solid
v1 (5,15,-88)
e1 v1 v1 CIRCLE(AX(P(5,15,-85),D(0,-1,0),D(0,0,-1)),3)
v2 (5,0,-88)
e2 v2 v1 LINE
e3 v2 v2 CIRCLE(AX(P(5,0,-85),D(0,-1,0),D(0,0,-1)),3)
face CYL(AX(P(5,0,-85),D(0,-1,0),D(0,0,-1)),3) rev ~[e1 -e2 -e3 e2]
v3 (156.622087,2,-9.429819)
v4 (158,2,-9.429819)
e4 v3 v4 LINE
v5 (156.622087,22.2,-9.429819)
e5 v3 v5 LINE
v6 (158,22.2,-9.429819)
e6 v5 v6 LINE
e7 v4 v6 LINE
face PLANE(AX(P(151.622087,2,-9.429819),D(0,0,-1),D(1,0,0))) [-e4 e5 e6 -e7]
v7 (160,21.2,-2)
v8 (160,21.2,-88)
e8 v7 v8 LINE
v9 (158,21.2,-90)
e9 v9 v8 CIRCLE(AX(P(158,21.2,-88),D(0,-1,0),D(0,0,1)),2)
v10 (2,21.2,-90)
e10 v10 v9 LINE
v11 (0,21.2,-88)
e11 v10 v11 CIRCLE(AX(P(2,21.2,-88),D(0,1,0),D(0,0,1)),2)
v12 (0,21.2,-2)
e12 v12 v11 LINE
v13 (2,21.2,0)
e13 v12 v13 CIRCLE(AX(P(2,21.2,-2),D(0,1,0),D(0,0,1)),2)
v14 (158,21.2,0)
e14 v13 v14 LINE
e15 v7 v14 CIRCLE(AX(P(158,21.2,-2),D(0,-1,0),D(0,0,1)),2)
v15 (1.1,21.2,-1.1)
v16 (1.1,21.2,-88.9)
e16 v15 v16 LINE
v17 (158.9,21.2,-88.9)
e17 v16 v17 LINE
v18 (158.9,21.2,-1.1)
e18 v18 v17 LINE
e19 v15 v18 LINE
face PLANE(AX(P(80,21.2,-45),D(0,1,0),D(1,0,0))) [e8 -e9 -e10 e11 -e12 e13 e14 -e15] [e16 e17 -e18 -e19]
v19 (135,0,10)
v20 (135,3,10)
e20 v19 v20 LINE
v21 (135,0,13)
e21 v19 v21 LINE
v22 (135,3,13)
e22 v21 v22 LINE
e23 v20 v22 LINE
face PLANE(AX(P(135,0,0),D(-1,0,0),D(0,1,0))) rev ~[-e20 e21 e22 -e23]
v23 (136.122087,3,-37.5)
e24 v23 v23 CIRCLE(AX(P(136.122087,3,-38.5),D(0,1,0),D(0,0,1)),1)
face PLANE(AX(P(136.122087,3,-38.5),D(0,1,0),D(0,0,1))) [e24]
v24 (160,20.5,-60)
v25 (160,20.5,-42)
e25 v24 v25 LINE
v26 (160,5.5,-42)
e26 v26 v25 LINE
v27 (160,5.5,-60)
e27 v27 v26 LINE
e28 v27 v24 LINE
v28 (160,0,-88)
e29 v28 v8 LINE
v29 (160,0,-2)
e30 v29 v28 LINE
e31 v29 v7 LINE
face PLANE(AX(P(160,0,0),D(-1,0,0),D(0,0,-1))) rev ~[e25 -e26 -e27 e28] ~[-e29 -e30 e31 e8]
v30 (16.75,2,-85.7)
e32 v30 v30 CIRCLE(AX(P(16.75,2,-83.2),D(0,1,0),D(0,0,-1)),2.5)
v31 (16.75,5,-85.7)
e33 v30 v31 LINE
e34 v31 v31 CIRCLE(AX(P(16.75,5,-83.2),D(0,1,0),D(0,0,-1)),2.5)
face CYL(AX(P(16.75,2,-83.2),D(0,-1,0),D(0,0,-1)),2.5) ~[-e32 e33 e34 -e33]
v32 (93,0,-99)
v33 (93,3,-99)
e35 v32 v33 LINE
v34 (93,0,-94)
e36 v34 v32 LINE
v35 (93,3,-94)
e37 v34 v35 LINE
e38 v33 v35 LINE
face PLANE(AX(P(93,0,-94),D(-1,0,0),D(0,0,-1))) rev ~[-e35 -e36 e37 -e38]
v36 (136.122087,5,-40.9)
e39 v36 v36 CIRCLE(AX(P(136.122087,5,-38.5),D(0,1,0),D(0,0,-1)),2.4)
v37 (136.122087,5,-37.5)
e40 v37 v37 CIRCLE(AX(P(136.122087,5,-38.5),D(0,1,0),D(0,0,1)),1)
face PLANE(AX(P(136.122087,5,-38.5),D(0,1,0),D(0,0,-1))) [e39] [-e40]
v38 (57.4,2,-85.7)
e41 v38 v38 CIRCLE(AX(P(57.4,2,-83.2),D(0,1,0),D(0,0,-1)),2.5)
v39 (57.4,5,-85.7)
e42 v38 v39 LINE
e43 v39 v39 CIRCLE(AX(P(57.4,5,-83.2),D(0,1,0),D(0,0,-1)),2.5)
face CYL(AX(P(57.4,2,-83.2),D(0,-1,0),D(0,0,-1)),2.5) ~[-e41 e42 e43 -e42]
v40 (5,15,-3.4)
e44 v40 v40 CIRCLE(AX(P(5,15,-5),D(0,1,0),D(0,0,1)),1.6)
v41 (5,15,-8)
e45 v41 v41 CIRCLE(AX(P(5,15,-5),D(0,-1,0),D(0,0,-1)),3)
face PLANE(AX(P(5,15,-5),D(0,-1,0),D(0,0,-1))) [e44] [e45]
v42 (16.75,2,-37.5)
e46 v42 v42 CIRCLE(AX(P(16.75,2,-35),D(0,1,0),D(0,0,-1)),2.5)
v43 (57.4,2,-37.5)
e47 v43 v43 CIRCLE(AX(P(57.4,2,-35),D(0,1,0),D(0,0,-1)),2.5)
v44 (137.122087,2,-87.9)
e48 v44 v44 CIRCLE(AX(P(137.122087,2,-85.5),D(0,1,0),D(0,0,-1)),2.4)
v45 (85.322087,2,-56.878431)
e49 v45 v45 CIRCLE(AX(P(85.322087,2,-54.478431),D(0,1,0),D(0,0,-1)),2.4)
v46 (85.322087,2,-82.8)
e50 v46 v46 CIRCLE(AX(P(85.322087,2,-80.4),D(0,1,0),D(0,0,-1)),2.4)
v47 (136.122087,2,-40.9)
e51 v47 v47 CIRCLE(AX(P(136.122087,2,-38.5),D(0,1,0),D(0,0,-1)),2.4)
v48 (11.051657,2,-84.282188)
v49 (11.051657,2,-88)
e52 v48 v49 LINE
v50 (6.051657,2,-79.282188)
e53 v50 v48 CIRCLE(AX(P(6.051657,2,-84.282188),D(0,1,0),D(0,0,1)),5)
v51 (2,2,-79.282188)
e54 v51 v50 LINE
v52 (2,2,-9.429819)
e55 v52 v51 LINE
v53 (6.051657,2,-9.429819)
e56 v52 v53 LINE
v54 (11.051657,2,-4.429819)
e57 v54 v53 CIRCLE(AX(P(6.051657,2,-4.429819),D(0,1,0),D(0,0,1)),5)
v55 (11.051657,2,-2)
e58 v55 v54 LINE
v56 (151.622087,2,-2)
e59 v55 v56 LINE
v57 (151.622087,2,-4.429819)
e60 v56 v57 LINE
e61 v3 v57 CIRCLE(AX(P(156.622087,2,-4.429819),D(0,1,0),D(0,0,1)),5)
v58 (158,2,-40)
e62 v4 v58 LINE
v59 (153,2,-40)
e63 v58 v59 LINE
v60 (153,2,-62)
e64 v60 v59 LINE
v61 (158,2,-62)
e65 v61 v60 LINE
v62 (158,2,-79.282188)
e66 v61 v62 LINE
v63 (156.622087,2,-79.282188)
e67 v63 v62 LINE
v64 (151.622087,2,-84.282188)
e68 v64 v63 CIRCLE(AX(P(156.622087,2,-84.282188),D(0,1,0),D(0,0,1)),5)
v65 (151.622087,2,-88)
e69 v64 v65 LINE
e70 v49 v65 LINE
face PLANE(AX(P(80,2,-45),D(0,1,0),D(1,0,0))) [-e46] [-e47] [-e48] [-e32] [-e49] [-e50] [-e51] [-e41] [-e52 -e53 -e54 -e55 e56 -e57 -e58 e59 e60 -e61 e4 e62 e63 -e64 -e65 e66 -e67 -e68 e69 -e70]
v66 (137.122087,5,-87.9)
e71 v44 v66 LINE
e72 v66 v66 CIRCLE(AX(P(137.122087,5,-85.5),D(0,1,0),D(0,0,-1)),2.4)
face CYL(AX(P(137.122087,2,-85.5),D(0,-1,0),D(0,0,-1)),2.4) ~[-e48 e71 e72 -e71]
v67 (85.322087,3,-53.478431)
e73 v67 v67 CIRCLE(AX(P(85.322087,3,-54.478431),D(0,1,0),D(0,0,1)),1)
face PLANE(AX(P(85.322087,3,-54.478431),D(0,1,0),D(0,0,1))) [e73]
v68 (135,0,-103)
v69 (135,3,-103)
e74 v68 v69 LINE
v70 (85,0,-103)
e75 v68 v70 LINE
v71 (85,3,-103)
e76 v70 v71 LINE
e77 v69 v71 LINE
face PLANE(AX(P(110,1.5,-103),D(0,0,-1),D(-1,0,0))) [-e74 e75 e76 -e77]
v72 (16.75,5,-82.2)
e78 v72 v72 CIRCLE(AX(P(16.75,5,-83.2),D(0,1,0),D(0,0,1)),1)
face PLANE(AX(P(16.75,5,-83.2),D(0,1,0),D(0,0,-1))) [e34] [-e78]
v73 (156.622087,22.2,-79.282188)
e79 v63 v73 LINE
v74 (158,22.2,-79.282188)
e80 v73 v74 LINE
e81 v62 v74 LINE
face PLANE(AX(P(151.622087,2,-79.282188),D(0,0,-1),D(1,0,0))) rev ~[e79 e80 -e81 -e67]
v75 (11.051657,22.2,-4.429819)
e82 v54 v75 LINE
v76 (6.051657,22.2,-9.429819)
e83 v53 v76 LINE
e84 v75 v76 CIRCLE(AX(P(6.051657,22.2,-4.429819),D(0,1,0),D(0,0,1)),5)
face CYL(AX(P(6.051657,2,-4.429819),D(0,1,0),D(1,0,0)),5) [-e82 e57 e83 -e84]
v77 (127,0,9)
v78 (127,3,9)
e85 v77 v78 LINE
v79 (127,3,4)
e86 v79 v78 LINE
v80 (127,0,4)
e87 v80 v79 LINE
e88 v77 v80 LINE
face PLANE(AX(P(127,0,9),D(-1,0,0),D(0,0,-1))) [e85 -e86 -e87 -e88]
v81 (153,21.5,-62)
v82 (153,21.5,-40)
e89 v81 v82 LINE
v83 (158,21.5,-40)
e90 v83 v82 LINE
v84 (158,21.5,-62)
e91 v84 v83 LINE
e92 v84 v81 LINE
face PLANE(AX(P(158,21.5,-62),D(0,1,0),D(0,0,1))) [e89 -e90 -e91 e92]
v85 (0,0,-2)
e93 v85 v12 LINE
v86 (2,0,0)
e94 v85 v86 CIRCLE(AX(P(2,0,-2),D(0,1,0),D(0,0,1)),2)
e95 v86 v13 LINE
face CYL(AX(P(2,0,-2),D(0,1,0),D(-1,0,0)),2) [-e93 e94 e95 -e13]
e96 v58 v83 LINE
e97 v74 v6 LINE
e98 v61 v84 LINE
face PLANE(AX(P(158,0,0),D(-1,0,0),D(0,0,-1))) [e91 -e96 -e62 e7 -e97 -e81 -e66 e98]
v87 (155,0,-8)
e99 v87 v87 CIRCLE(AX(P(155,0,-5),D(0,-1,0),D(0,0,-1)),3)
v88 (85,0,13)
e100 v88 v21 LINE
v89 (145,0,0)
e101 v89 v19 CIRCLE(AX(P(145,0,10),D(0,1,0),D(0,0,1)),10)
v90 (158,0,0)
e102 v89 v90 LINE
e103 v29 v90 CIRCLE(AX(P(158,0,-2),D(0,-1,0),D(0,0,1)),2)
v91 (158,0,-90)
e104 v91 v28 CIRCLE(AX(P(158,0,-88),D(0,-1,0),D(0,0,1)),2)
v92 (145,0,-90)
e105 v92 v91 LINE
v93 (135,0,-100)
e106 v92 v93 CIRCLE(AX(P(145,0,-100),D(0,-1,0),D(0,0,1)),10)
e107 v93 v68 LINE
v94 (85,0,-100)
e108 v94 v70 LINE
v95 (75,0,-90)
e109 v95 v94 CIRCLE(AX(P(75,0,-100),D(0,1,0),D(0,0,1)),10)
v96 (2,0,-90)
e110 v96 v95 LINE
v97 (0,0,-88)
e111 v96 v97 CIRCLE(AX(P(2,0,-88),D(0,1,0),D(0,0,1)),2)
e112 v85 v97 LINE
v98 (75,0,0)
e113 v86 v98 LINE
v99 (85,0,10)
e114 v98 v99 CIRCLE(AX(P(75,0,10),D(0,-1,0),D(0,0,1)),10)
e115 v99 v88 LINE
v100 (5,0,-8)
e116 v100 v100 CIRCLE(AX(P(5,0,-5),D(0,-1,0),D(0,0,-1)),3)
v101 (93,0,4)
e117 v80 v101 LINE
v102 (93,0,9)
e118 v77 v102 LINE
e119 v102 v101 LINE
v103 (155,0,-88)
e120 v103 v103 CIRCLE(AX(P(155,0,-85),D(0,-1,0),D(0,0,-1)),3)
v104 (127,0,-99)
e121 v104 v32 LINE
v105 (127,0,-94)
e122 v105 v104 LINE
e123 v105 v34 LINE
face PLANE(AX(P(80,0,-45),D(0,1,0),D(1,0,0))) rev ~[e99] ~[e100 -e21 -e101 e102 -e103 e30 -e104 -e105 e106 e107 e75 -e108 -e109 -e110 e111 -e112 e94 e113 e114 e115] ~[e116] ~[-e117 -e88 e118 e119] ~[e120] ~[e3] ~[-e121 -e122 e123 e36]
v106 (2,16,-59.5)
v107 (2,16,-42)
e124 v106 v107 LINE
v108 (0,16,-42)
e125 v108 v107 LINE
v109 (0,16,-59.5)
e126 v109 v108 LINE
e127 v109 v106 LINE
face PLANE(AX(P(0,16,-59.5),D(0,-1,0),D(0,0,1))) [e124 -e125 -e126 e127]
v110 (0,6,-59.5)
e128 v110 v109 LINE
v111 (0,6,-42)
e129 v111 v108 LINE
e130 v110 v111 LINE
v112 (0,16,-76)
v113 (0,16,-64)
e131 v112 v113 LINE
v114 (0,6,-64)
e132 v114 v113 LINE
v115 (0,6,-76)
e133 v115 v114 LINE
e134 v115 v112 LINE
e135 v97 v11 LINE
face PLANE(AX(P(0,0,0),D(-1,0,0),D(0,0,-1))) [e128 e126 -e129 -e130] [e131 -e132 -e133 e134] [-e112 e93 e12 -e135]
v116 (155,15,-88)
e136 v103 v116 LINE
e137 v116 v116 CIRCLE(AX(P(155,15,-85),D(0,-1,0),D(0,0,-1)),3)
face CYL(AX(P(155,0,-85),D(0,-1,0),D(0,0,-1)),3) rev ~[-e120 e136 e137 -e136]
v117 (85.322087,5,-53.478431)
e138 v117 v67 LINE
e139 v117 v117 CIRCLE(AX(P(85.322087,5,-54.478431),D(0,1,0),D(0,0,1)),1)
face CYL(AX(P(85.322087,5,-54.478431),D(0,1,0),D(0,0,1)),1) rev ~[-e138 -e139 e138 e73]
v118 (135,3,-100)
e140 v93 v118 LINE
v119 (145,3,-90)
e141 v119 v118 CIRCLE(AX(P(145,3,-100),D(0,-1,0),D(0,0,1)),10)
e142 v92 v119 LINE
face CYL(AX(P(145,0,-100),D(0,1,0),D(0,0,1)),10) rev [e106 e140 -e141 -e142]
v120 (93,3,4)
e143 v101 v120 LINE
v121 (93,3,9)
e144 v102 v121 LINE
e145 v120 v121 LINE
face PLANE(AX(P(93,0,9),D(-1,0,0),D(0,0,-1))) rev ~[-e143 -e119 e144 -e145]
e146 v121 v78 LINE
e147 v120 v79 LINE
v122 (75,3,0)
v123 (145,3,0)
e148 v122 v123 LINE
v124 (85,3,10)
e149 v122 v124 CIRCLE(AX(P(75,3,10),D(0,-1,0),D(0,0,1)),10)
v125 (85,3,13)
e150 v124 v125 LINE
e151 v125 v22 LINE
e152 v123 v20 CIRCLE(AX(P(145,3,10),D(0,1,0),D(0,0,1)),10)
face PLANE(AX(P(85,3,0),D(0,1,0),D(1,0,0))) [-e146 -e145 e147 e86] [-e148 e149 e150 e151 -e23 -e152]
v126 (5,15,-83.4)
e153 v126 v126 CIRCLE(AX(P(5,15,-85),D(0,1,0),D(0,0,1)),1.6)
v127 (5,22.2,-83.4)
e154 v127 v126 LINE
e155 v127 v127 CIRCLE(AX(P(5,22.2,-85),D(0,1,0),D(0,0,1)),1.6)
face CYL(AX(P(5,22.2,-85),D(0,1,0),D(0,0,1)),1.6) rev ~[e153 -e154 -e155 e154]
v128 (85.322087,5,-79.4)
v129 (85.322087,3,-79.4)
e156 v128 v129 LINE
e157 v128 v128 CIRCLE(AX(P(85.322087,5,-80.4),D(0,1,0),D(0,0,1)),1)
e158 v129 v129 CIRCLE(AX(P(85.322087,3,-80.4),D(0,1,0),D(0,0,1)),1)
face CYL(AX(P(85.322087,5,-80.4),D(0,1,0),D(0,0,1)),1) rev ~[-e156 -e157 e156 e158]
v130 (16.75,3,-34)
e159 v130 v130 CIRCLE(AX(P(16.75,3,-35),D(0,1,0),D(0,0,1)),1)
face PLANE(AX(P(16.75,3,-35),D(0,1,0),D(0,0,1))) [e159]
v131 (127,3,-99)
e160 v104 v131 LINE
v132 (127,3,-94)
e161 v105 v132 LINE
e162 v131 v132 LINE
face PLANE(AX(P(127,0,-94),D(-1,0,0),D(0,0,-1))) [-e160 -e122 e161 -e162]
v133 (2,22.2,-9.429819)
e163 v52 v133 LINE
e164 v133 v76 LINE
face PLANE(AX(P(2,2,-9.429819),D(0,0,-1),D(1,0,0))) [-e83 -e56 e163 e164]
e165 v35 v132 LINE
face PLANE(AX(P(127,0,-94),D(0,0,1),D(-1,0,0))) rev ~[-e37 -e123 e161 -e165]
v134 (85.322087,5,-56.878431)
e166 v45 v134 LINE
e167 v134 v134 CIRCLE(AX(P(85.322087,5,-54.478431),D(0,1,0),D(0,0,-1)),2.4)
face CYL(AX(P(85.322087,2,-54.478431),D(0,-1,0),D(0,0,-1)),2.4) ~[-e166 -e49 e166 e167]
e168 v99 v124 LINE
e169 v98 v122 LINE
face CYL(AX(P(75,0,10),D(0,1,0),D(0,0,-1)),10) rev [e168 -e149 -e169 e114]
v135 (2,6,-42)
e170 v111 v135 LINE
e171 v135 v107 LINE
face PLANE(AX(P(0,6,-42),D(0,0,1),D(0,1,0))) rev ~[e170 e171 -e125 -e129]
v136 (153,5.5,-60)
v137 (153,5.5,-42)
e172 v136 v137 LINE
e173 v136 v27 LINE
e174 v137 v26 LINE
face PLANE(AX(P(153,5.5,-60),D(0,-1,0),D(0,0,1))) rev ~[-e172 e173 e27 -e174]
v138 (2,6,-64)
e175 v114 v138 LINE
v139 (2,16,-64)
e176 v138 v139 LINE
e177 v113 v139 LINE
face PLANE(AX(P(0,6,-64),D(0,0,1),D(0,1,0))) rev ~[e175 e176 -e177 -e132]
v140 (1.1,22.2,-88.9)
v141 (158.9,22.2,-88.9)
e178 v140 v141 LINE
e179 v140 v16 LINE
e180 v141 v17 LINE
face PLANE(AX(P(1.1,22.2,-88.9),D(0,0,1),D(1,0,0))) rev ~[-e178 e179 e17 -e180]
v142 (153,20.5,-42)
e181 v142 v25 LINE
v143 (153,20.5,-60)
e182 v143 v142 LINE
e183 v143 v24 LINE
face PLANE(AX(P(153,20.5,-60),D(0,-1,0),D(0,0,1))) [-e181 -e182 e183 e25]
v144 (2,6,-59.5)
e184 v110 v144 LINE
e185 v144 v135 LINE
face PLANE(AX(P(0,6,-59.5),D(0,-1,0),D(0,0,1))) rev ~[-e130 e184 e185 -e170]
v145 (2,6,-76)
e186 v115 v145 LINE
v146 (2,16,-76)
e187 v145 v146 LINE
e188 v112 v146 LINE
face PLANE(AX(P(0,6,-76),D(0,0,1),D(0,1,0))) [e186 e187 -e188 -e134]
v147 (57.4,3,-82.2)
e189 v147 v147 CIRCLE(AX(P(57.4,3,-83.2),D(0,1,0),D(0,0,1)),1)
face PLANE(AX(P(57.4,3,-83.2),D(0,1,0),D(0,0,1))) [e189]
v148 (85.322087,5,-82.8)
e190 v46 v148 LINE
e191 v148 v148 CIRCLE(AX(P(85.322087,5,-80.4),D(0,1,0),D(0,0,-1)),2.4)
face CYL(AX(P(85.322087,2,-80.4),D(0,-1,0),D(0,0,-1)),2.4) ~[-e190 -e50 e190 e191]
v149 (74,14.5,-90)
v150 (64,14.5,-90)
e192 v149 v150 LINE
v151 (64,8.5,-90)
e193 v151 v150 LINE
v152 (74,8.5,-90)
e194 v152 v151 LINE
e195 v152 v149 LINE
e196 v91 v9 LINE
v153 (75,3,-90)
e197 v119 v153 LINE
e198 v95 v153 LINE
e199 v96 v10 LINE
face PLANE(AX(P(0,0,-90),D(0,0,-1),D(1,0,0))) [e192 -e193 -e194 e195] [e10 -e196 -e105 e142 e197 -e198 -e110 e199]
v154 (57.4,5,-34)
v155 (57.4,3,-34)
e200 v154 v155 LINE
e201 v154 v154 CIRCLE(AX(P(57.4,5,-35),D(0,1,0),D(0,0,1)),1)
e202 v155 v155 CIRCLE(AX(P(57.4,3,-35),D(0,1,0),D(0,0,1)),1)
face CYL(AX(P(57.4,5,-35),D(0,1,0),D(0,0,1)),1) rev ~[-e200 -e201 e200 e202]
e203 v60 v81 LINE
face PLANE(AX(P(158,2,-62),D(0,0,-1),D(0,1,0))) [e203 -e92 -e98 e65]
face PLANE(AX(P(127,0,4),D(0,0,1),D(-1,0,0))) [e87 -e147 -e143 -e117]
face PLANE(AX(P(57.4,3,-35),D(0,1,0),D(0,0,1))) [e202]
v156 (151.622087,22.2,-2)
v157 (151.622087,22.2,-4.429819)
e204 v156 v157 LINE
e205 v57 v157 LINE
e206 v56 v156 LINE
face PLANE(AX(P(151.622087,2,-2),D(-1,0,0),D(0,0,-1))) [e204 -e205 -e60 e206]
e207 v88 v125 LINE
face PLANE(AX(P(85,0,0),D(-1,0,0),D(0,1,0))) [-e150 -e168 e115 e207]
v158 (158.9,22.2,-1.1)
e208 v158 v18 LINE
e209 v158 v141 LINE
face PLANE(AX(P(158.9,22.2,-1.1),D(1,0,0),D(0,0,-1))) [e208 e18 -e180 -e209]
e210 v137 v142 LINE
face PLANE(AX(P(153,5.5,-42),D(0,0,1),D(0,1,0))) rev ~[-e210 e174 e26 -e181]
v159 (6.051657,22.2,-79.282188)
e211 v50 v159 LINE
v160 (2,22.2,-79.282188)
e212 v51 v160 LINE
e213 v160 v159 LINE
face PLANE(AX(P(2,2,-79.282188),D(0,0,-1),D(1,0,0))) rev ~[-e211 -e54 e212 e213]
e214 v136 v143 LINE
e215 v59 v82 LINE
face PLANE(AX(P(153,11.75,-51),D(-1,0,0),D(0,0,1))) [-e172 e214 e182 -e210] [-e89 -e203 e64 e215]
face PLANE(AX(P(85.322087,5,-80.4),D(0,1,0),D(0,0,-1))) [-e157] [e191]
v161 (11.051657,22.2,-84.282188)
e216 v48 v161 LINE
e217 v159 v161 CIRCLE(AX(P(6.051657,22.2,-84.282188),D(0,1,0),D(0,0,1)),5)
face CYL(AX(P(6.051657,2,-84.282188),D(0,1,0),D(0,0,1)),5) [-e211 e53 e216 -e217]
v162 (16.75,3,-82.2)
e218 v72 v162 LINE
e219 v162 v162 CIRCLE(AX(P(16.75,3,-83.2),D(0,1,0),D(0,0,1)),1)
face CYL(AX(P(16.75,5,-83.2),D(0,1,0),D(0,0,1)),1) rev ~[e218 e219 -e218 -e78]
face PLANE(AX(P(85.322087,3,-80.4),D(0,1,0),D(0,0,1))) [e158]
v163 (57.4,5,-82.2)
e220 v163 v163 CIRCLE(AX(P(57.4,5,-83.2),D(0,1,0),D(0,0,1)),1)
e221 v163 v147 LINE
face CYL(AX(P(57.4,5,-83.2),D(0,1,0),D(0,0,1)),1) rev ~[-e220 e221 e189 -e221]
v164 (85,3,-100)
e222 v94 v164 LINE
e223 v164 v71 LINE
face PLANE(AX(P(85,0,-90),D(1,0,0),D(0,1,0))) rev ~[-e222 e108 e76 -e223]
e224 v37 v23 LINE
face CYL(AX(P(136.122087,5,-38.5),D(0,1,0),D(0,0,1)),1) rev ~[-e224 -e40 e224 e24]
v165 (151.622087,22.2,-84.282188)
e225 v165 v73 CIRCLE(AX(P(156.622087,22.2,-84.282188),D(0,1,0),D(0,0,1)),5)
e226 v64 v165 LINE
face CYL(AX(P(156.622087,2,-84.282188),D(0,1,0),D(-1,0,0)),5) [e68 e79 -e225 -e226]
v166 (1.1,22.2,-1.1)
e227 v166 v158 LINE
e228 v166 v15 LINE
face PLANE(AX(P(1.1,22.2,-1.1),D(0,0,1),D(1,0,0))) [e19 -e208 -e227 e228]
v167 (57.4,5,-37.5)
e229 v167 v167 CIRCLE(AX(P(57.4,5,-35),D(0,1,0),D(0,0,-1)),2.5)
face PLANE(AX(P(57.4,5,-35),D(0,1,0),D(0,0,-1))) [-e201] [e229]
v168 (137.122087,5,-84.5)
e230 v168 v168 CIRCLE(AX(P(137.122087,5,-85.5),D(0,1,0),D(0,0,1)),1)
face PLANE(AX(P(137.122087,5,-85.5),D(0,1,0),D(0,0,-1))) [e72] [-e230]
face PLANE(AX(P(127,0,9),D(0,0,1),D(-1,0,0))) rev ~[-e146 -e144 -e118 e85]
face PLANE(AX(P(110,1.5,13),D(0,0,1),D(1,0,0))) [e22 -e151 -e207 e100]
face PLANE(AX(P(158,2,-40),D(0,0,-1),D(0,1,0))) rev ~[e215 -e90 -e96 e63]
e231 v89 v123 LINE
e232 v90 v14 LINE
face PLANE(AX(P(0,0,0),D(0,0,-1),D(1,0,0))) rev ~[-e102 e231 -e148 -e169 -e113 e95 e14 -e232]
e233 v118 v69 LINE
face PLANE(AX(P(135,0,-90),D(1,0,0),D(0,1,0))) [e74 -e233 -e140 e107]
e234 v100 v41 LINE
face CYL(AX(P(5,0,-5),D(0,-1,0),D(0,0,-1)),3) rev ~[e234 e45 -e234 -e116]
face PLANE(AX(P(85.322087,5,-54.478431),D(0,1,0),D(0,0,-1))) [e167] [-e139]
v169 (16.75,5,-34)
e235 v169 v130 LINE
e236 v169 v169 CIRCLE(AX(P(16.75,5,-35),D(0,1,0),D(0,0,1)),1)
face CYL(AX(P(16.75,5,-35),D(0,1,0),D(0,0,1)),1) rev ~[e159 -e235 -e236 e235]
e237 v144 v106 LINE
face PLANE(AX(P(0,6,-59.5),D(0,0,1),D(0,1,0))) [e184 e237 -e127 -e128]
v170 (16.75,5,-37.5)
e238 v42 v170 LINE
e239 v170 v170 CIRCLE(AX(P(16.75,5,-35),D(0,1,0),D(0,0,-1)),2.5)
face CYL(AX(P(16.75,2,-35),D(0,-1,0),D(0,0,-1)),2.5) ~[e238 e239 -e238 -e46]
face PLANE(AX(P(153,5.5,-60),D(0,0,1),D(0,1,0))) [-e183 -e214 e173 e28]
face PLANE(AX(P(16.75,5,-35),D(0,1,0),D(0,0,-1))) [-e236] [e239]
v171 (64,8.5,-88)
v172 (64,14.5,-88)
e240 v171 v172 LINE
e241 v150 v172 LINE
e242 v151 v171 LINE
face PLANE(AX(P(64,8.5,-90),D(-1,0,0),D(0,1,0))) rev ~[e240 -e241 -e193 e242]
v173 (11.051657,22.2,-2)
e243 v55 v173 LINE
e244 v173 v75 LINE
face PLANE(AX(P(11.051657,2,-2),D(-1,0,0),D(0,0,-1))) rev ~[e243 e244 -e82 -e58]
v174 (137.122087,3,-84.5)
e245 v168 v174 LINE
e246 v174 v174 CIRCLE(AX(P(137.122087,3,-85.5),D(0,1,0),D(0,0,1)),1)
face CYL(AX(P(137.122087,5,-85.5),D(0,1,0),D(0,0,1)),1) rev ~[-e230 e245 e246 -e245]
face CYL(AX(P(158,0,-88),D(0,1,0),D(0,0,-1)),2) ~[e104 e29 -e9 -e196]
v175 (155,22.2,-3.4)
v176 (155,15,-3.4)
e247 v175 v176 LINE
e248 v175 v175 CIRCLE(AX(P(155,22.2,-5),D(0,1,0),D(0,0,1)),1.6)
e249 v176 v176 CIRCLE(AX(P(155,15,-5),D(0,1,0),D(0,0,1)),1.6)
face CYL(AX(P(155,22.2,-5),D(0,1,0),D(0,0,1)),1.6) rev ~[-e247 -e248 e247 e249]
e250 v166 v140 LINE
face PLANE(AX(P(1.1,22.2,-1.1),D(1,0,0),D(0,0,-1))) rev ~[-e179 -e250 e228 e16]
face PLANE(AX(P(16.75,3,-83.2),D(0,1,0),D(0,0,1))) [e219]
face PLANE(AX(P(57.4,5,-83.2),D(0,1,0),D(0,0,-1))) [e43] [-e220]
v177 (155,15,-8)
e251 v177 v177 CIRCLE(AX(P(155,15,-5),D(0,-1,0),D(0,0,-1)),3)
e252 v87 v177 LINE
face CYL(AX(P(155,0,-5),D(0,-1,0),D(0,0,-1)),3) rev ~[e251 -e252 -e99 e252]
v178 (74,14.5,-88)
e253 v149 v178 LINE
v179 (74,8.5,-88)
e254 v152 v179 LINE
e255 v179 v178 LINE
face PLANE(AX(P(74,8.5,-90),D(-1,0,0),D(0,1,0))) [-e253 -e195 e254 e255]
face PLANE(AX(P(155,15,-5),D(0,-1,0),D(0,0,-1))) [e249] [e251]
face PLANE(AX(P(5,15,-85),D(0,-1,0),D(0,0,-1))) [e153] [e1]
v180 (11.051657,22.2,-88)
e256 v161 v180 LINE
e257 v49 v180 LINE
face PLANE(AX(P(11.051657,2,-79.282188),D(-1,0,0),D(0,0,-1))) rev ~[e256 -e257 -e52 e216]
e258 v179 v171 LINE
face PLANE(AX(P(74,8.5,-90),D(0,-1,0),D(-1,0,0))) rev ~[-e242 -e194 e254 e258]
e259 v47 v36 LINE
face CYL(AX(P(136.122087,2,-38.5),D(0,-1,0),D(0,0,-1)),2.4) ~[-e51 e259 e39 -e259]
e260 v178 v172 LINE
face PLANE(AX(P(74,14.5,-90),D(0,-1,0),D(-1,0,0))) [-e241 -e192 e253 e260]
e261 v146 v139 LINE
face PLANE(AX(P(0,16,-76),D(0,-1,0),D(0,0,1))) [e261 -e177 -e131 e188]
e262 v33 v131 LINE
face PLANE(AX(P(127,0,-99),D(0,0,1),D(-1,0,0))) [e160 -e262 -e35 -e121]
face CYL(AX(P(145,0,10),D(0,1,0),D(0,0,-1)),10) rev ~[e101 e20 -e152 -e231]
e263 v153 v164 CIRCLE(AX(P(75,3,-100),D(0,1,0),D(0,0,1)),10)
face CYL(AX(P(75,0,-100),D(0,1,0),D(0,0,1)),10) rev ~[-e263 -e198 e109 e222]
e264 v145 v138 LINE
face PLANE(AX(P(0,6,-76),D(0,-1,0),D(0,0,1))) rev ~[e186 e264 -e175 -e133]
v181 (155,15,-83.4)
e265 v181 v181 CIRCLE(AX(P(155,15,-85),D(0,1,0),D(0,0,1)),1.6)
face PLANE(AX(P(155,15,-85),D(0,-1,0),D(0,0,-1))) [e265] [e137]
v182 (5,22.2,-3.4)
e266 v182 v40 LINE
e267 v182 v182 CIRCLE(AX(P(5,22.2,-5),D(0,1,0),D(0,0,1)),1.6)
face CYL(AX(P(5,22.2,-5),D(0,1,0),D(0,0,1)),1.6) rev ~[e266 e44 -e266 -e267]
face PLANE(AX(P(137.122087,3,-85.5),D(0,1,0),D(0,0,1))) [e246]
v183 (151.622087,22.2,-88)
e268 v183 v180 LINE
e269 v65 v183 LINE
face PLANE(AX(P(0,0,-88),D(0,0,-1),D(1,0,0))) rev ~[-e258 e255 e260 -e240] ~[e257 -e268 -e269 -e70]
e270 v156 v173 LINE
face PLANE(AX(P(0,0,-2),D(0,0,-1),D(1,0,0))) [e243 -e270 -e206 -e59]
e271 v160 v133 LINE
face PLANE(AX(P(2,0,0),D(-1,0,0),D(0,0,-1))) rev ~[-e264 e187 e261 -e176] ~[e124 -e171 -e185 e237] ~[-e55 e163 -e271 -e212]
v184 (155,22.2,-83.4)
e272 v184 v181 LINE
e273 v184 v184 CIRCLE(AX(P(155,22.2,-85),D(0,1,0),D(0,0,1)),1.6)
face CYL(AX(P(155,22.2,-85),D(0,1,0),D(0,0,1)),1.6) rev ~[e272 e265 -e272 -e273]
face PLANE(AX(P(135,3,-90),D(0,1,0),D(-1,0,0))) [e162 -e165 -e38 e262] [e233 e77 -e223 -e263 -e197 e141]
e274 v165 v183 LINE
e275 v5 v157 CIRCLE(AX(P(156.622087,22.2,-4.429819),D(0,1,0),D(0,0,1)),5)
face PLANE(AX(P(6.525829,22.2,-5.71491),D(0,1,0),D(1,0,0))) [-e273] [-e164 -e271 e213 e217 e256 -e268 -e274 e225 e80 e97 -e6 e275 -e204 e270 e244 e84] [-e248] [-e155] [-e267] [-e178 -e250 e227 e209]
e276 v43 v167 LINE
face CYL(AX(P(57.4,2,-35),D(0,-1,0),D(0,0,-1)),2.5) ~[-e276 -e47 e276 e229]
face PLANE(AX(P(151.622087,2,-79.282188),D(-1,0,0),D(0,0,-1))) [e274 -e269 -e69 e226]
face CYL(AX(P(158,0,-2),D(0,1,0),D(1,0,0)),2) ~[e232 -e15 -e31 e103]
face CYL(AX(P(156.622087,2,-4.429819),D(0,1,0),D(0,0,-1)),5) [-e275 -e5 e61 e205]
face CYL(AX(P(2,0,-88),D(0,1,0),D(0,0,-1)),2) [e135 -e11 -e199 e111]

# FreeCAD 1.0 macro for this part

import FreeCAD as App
import Part
import Sketcher
from FreeCAD import Vector


def edges_at(feature, points):
    """Names of the edges that pass closest to the given points."""
    edges = feature.Shape.Edges
    near = lambda p: min(range(len(edges)), key=lambda i: edges[i].distToShape(Part.Vertex(*p))[0])
    return sorted({f"Edge{near(p) + 1}" for p in points})


def faces_at(feature, points):
    """Names of the faces that lie closest to the given points."""
    faces = feature.Shape.Faces
    near = lambda p: min(range(len(faces)), key=lambda i: faces[i].distToShape(Part.Vertex(*p))[0])
    return sorted({f"Face{near(p) + 1}" for p in points})

doc = App.newDocument("Part")
body = doc.addObject("PartDesign::Body", "Body")

# Sketch on XZ plane
sketch1 = body.newObject("Sketcher::SketchObject", "Sketch")
sketch1.AttachmentSupport = (doc.getObject("XZ_Plane"), [""])
sketch1.MapMode = "FlatFace"
sketch1.addGeometry([
    Part.LineSegment(Vector(0, -90, 0), Vector(0, 0, 0)),
    Part.LineSegment(Vector(0, 0, 0), Vector(160, 0, 0)),
    Part.LineSegment(Vector(160, 0, 0), Vector(160, -90, 0)),
    Part.LineSegment(Vector(160, -90, 0), Vector(0, -90, 0)),
], False)
sketch1.addConstraint([
    Sketcher.Constraint("Coincident", 0, 2, 1, 1),
    Sketcher.Constraint("Coincident", 1, 2, 2, 1),
    Sketcher.Constraint("Coincident", 2, 2, 3, 1),
    Sketcher.Constraint("Coincident", 3, 2, 0, 1),
    Sketcher.Constraint("Vertical", 0),
    Sketcher.Constraint("Horizontal", 1),
    Sketcher.Constraint("Vertical", 2),
    Sketcher.Constraint("Horizontal", 3),
    Sketcher.Constraint("Coincident", 0, 2, -1, 1),
    Sketcher.Constraint("DistanceX", 1, 1, 1, 2, 160.0),
    Sketcher.Constraint("DistanceY", 0, 1, 0, 2, 90.0),
])
pad1 = body.newObject("PartDesign::Pad", "Pad")
pad1.Profile = sketch1
pad1.Length = 22.2
pad1.Reversed = True
doc.recompute()

thickness = body.newObject("PartDesign::Thickness", "Thickness")
thickness.Base = (pad1, faces_at(pad1, [(80, 22.2, -45)]))
thickness.Value = 2
thickness.Reversed = True
thickness.Join = "Intersection"

# Sketch on XZ plane
sketch2 = body.newObject("Sketcher::SketchObject", "Sketch001")
sketch2.AttachmentSupport = (doc.getObject("XZ_Plane"), [""])
sketch2.MapMode = "FlatFace"
sketch2.AttachmentOffset = App.Placement(Vector(0, 0, -2), App.Rotation())
sketch2.addGeometry([
    Part.LineSegment(Vector(2, -9, 0), Vector(2, -2, 0)),  # 0
    Part.LineSegment(Vector(2, -2, 0), Vector(11, -2, 0)),  # 1
    Part.LineSegment(Vector(11, -2, 0), Vector(11, -9, 0)),  # 2
    Part.LineSegment(Vector(11, -9, 0), Vector(2, -9, 0)),  # 3
    Part.LineSegment(Vector(152, -88, 0), Vector(152, -79, 0)),  # 4
    Part.LineSegment(Vector(152, -79, 0), Vector(158, -79, 0)),  # 5
    Part.LineSegment(Vector(158, -79, 0), Vector(158, -88, 0)),  # 6
    Part.LineSegment(Vector(158, -88, 0), Vector(152, -88, 0)),  # 7
    Part.LineSegment(Vector(152, -9, 0), Vector(152, -2, 0)),  # 8
    Part.LineSegment(Vector(152, -2, 0), Vector(158, -2, 0)),  # 9
    Part.LineSegment(Vector(158, -2, 0), Vector(158, -9, 0)),  # 10
    Part.LineSegment(Vector(158, -9, 0), Vector(152, -9, 0)),  # 11
    Part.LineSegment(Vector(2, -88, 0), Vector(2, -79, 0)),  # 12
    Part.LineSegment(Vector(2, -79, 0), Vector(11, -79, 0)),  # 13
    Part.LineSegment(Vector(11, -79, 0), Vector(11, -88, 0)),  # 14
    Part.LineSegment(Vector(11, -88, 0), Vector(2, -88, 0)),  # 15
], False)
sketch2.addConstraint([
    Sketcher.Constraint("Coincident", 0, 2, 1, 1),
    Sketcher.Constraint("Coincident", 1, 2, 2, 1),
    Sketcher.Constraint("Coincident", 2, 2, 3, 1),
    Sketcher.Constraint("Coincident", 3, 2, 0, 1),
    Sketcher.Constraint("Coincident", 4, 2, 5, 1),
    Sketcher.Constraint("Coincident", 5, 2, 6, 1),
    Sketcher.Constraint("Coincident", 6, 2, 7, 1),
    Sketcher.Constraint("Coincident", 7, 2, 4, 1),
    Sketcher.Constraint("Coincident", 8, 2, 9, 1),
    Sketcher.Constraint("Coincident", 9, 2, 10, 1),
    Sketcher.Constraint("Coincident", 10, 2, 11, 1),
    Sketcher.Constraint("Coincident", 11, 2, 8, 1),
    Sketcher.Constraint("Coincident", 12, 2, 13, 1),
    Sketcher.Constraint("Coincident", 13, 2, 14, 1),
    Sketcher.Constraint("Coincident", 14, 2, 15, 1),
    Sketcher.Constraint("Coincident", 15, 2, 12, 1),
    Sketcher.Constraint("Vertical", 0),
    Sketcher.Constraint("Horizontal", 1),
    Sketcher.Constraint("Vertical", 2),
    Sketcher.Constraint("Horizontal", 3),
    Sketcher.Constraint("Vertical", 4),
    Sketcher.Constraint("Horizontal", 5),
    Sketcher.Constraint("Vertical", 6),
    Sketcher.Constraint("Horizontal", 7),
    Sketcher.Constraint("Vertical", 8),
    Sketcher.Constraint("Horizontal", 9),
    Sketcher.Constraint("Vertical", 10),
    Sketcher.Constraint("Horizontal", 11),
    Sketcher.Constraint("Vertical", 12),
    Sketcher.Constraint("Horizontal", 13),
    Sketcher.Constraint("Vertical", 14),
    Sketcher.Constraint("Horizontal", 15),
    Sketcher.Constraint("Horizontal", 1, 2, 8, 2),
    Sketcher.Constraint("Horizontal", 3, 2, 10, 2),
    Sketcher.Constraint("Horizontal", 5, 2, 12, 2),
    Sketcher.Constraint("Horizontal", 7, 2, 14, 2),
    Sketcher.Constraint("Vertical", 7, 2, 8, 2),
    Sketcher.Constraint("Vertical", 6, 2, 9, 2),
    Sketcher.Constraint("Vertical", 3, 2, 12, 2),
    Sketcher.Constraint("Vertical", 2, 2, 13, 2),
    Sketcher.Constraint("DistanceX", -1, 1, 0, 2, 2.0),
    Sketcher.Constraint("DistanceY", 0, 2, -1, 1, 2.0),
    Sketcher.Constraint("DistanceX", -1, 1, 5, 2, 158.0),
    Sketcher.Constraint("DistanceY", 6, 2, -1, 1, 88.0),
    Sketcher.Constraint("DistanceY", 0, 1, 0, 2, 7.429819),
    Sketcher.Constraint("DistanceX", 1, 1, 1, 2, 9.051657),
    Sketcher.Constraint("DistanceX", 5, 1, 5, 2, 6.377913),
    Sketcher.Constraint("DistanceY", 4, 1, 4, 2, 8.717812),
])
pad2 = body.newObject("PartDesign::Pad", "Pad001")
pad2.Profile = sketch2
pad2.Length = 20.2
pad2.Reversed = True

# Sketch on XZ plane
sketch3 = body.newObject("Sketcher::SketchObject", "Sketch002")
sketch3.AttachmentSupport = (doc.getObject("XZ_Plane"), [""])
sketch3.MapMode = "FlatFace"
sketch3.AttachmentOffset = App.Placement(Vector(0, 0, -22.2), App.Rotation())
sketch3.addGeometry([
    Part.LineSegment(Vector(0, -90, 0), Vector(0, 0, 0)),  # 0
    Part.LineSegment(Vector(0, 0, 0), Vector(160, 0, 0)),  # 1
    Part.LineSegment(Vector(160, 0, 0), Vector(160, -90, 0)),  # 2
    Part.LineSegment(Vector(160, -90, 0), Vector(0, -90, 0)),  # 3
    Part.LineSegment(Vector(159, -1, 0), Vector(1, -1, 0)),  # 4
    Part.LineSegment(Vector(1, -1, 0), Vector(1, -89, 0)),  # 5
    Part.LineSegment(Vector(1, -89, 0), Vector(159, -89, 0)),  # 6
    Part.LineSegment(Vector(159, -89, 0), Vector(159, -1, 0)),  # 7
], False)
sketch3.addConstraint([
    Sketcher.Constraint("Coincident", 0, 2, 1, 1),
    Sketcher.Constraint("Coincident", 1, 2, 2, 1),
    Sketcher.Constraint("Coincident", 2, 2, 3, 1),
    Sketcher.Constraint("Coincident", 3, 2, 0, 1),
    Sketcher.Constraint("Coincident", 4, 2, 5, 1),
    Sketcher.Constraint("Coincident", 5, 2, 6, 1),
    Sketcher.Constraint("Coincident", 6, 2, 7, 1),
    Sketcher.Constraint("Coincident", 7, 2, 4, 1),
    Sketcher.Constraint("Vertical", 0),
    Sketcher.Constraint("Horizontal", 1),
    Sketcher.Constraint("Vertical", 2),
    Sketcher.Constraint("Horizontal", 3),
    Sketcher.Constraint("Horizontal", 4),
    Sketcher.Constraint("Vertical", 5),
    Sketcher.Constraint("Horizontal", 6),
    Sketcher.Constraint("Vertical", 7),
    Sketcher.Constraint("Coincident", 0, 2, -1, 1),
    Sketcher.Constraint("DistanceX", 1, 1, 1, 2, 160.0),
    Sketcher.Constraint("DistanceY", 0, 1, 0, 2, 90.0),
    Sketcher.Constraint("DistanceX", 4, 2, 4, 1, 157.8),
    Sketcher.Constraint("DistanceY", 5, 2, 5, 1, 87.8),
    Sketcher.Constraint("DistanceX", -1, 1, 4, 2, 1.1),
    Sketcher.Constraint("DistanceY", 4, 2, -1, 1, 1.1),
])
pocket1 = body.newObject("PartDesign::Pocket", "Pocket")
pocket1.Profile = sketch3
pocket1.Length = 1
pocket1.Reversed = True

# Sketch on XZ plane
sketch4 = body.newObject("Sketcher::SketchObject", "Sketch003")
sketch4.AttachmentSupport = (doc.getObject("XZ_Plane"), [""])
sketch4.MapMode = "FlatFace"
sketch4.AttachmentOffset = App.Placement(Vector(0, 0, -22.2), App.Rotation())
sketch4.addGeometry([
    Part.Circle(Vector(155, -85, 0), Vector(0, 0, 1), 1.6),
    Part.Circle(Vector(155, -5, 0), Vector(0, 0, 1), 1.6),
    Part.Circle(Vector(5, -85, 0), Vector(0, 0, 1), 1.6),
    Part.Circle(Vector(5, -5, 0), Vector(0, 0, 1), 1.6),
], False)
sketch4.addConstraint([
    Sketcher.Constraint("Equal", 0, 1),
    Sketcher.Constraint("Equal", 1, 2),
    Sketcher.Constraint("Equal", 2, 3),
    Sketcher.Constraint("Horizontal", 0, 3, 2, 3),
    Sketcher.Constraint("Horizontal", 1, 3, 3, 3),
    Sketcher.Constraint("Vertical", 0, 3, 1, 3),
    Sketcher.Constraint("Vertical", 2, 3, 3, 3),
    Sketcher.Constraint("Diameter", 0, 3.2),
    Sketcher.Constraint("DistanceX", -1, 1, 0, 3, 155.0),
    Sketcher.Constraint("DistanceY", 0, 3, -1, 1, 85.0),
    Sketcher.Constraint("DistanceY", 1, 3, -1, 1, 5.0),
    Sketcher.Constraint("DistanceX", -1, 1, 2, 3, 5.0),
])
pocket2 = body.newObject("PartDesign::Pocket", "Pocket001")
pocket2.Profile = sketch4
pocket2.Length = 25
pocket2.Reversed = True

# Sketch on XZ plane
sketch5 = body.newObject("Sketcher::SketchObject", "Sketch004")
sketch5.AttachmentSupport = (doc.getObject("XZ_Plane"), [""])
sketch5.MapMode = "FlatFace"
sketch5.addGeometry([
    Part.Circle(Vector(155, -5, 0), Vector(0, 0, 1), 3),
    Part.Circle(Vector(155, -85, 0), Vector(0, 0, 1), 3),
    Part.Circle(Vector(5, -5, 0), Vector(0, 0, 1), 3),
    Part.Circle(Vector(5, -85, 0), Vector(0, 0, 1), 3),
], False)
sketch5.addConstraint([
    Sketcher.Constraint("Equal", 0, 1),
    Sketcher.Constraint("Equal", 1, 2),
    Sketcher.Constraint("Equal", 2, 3),
    Sketcher.Constraint("Horizontal", 0, 3, 2, 3),
    Sketcher.Constraint("Horizontal", 1, 3, 3, 3),
    Sketcher.Constraint("Vertical", 0, 3, 1, 3),
    Sketcher.Constraint("Vertical", 2, 3, 3, 3),
    Sketcher.Constraint("Diameter", 0, 6.0),
    Sketcher.Constraint("DistanceX", -1, 1, 0, 3, 155.0),
    Sketcher.Constraint("DistanceY", 0, 3, -1, 1, 5.0),
    Sketcher.Constraint("DistanceY", 1, 3, -1, 1, 85.0),
    Sketcher.Constraint("DistanceX", -1, 1, 2, 3, 5.0),
])
pocket3 = body.newObject("PartDesign::Pocket", "Pocket002")
pocket3.Profile = sketch5
pocket3.Length = 15

# Sketch on XY plane
sketch6 = body.newObject("Sketcher::SketchObject", "Sketch005")
sketch6.AttachmentSupport = (doc.getObject("XY_Plane"), [""])
sketch6.MapMode = "FlatFace"
sketch6.addGeometry([
    Part.LineSegment(Vector(85, 3, 0), Vector(85, 0, 0)),
    Part.LineSegment(Vector(85, 0, 0), Vector(135, 0, 0)),
    Part.LineSegment(Vector(135, 0, 0), Vector(135, 3, 0)),
    Part.LineSegment(Vector(135, 3, 0), Vector(85, 3, 0)),
], False)
sketch6.addConstraint([
    Sketcher.Constraint("Coincident", 0, 2, 1, 1),
    Sketcher.Constraint("Coincident", 1, 2, 2, 1),
    Sketcher.Constraint("Coincident", 2, 2, 3, 1),
    Sketcher.Constraint("Coincident", 3, 2, 0, 1),
    Sketcher.Constraint("Vertical", 0),
    Sketcher.Constraint("Horizontal", 1),
    Sketcher.Constraint("Vertical", 2),
    Sketcher.Constraint("Horizontal", 3),
    Sketcher.Constraint("PointOnObject", 0, 2, -1),
    Sketcher.Constraint("DistanceX", 1, 1, 1, 2, 50.0),
    Sketcher.Constraint("DistanceY", 0, 2, 0, 1, 3.0),
    Sketcher.Constraint("DistanceX", -1, 1, 0, 2, 85.0),
])
pad3 = body.newObject("PartDesign::Pad", "Pad002")
pad3.Profile = sketch6
pad3.Length = 13

# Sketch on XZ plane
sketch7 = body.newObject("Sketcher::SketchObject", "Sketch006")
sketch7.AttachmentSupport = (doc.getObject("XZ_Plane"), [""])
sketch7.MapMode = "FlatFace"
sketch7.addGeometry([
    Part.LineSegment(Vector(127, 4, 0), Vector(127, 9, 0)),
    Part.LineSegment(Vector(127, 9, 0), Vector(93, 9, 0)),
    Part.LineSegment(Vector(93, 9, 0), Vector(93, 4, 0)),
    Part.LineSegment(Vector(93, 4, 0), Vector(127, 4, 0)),
], False)
sketch7.addConstraint([
    Sketcher.Constraint("Coincident", 0, 2, 1, 1),
    Sketcher.Constraint("Coincident", 1, 2, 2, 1),
    Sketcher.Constraint("Coincident", 2, 2, 3, 1),
    Sketcher.Constraint("Coincident", 3, 2, 0, 1),
    Sketcher.Constraint("Vertical", 0),
    Sketcher.Constraint("Horizontal", 1),
    Sketcher.Constraint("Vertical", 2),
    Sketcher.Constraint("Horizontal", 3),
    Sketcher.Constraint("DistanceX", 1, 2, 1, 1, 34.0),
    Sketcher.Constraint("DistanceY", 0, 1, 0, 2, 5.0),
    Sketcher.Constraint("DistanceX", -1, 1, 0, 2, 127.0),
    Sketcher.Constraint("DistanceY", -1, 1, 0, 2, 9.0),
])
pocket4 = body.newObject("PartDesign::Pocket", "Pocket003")
pocket4.Profile = sketch7
pocket4.Length = 10

# Sketch on XY plane
sketch8 = body.newObject("Sketcher::SketchObject", "Sketch007")
sketch8.AttachmentSupport = (doc.getObject("XY_Plane"), [""])
sketch8.MapMode = "FlatFace"
sketch8.AttachmentOffset = App.Placement(Vector(0, 0, -90), App.Rotation())
sketch8.addGeometry([
    Part.LineSegment(Vector(135, 3, 0), Vector(135, 0, 0)),
    Part.LineSegment(Vector(135, 0, 0), Vector(85, 0, 0)),
    Part.LineSegment(Vector(85, 0, 0), Vector(85, 3, 0)),
    Part.LineSegment(Vector(85, 3, 0), Vector(135, 3, 0)),
], False)
sketch8.addConstraint([
    Sketcher.Constraint("Coincident", 0, 2, 1, 1),
    Sketcher.Constraint("Coincident", 1, 2, 2, 1),
    Sketcher.Constraint("Coincident", 2, 2, 3, 1),
    Sketcher.Constraint("Coincident", 3, 2, 0, 1),
    Sketcher.Constraint("Vertical", 0),
    Sketcher.Constraint("Horizontal", 1),
    Sketcher.Constraint("Vertical", 2),
    Sketcher.Constraint("Horizontal", 3),
    Sketcher.Constraint("PointOnObject", 0, 2, -1),
    Sketcher.Constraint("DistanceX", 1, 2, 1, 1, 50.0),
    Sketcher.Constraint("DistanceY", 0, 2, 0, 1, 3.0),
    Sketcher.Constraint("DistanceX", -1, 1, 0, 2, 135.0),
])
pad4 = body.newObject("PartDesign::Pad", "Pad003")
pad4.Profile = sketch8
pad4.Length = 13
pad4.Reversed = True

# Sketch on XZ plane
sketch9 = body.newObject("Sketcher::SketchObject", "Sketch008")
sketch9.AttachmentSupport = (doc.getObject("XZ_Plane"), [""])
sketch9.MapMode = "FlatFace"
sketch9.addGeometry([
    Part.LineSegment(Vector(127, -99, 0), Vector(127, -94, 0)),
    Part.LineSegment(Vector(127, -94, 0), Vector(93, -94, 0)),
    Part.LineSegment(Vector(93, -94, 0), Vector(93, -99, 0)),
    Part.LineSegment(Vector(93, -99, 0), Vector(127, -99, 0)),
], False)
sketch9.addConstraint([
    Sketcher.Constraint("Coincident", 0, 2, 1, 1),
    Sketcher.Constraint("Coincident", 1, 2, 2, 1),
    Sketcher.Constraint("Coincident", 2, 2, 3, 1),
    Sketcher.Constraint("Coincident", 3, 2, 0, 1),
    Sketcher.Constraint("Vertical", 0),
    Sketcher.Constraint("Horizontal", 1),
    Sketcher.Constraint("Vertical", 2),
    Sketcher.Constraint("Horizontal", 3),
    Sketcher.Constraint("DistanceX", 1, 2, 1, 1, 34.0),
    Sketcher.Constraint("DistanceY", 0, 1, 0, 2, 5.0),
    Sketcher.Constraint("DistanceX", -1, 1, 0, 2, 127.0),
    Sketcher.Constraint("DistanceY", 0, 2, -1, 1, 94.0),
])
pocket5 = body.newObject("PartDesign::Pocket", "Pocket004")
pocket5.Profile = sketch9
pocket5.Length = 10

# Sketch on YZ plane
sketch10 = body.newObject("Sketcher::SketchObject", "Sketch009")
sketch10.AttachmentSupport = (doc.getObject("YZ_Plane"), [""])
sketch10.MapMode = "FlatFace"
sketch10.addGeometry([
    Part.LineSegment(Vector(16, -76, 0), Vector(6, -76, 0)),  # 0
    Part.LineSegment(Vector(6, -76, 0), Vector(6, -64, 0)),  # 1
    Part.LineSegment(Vector(6, -64, 0), Vector(16, -64, 0)),  # 2
    Part.LineSegment(Vector(16, -64, 0), Vector(16, -76, 0)),  # 3
    Part.LineSegment(Vector(16, -60, 0), Vector(6, -60, 0)),  # 4
    Part.LineSegment(Vector(6, -60, 0), Vector(6, -42, 0)),  # 5
    Part.LineSegment(Vector(6, -42, 0), Vector(16, -42, 0)),  # 6
    Part.LineSegment(Vector(16, -42, 0), Vector(16, -60, 0)),  # 7
], False)
sketch10.addConstraint([
    Sketcher.Constraint("Coincident", 0, 2, 1, 1),
    Sketcher.Constraint("Coincident", 1, 2, 2, 1),
    Sketcher.Constraint("Coincident", 2, 2, 3, 1),
    Sketcher.Constraint("Coincident", 3, 2, 0, 1),
    Sketcher.Constraint("Coincident", 4, 2, 5, 1),
    Sketcher.Constraint("Coincident", 5, 2, 6, 1),
    Sketcher.Constraint("Coincident", 6, 2, 7, 1),
    Sketcher.Constraint("Coincident", 7, 2, 4, 1),
    Sketcher.Constraint("Horizontal", 0),
    Sketcher.Constraint("Vertical", 1),
    Sketcher.Constraint("Horizontal", 2),
    Sketcher.Constraint("Vertical", 3),
    Sketcher.Constraint("Horizontal", 4),
    Sketcher.Constraint("Vertical", 5),
    Sketcher.Constraint("Horizontal", 6),
    Sketcher.Constraint("Vertical", 7),
    Sketcher.Constraint("Vertical", 1, 2, 4, 2),
    Sketcher.Constraint("Vertical", 3, 2, 6, 2),
    Sketcher.Constraint("DistanceX", 0, 2, 0, 1, 10.0),
    Sketcher.Constraint("DistanceY", 1, 1, 1, 2, 12.0),
    Sketcher.Constraint("DistanceY", 5, 1, 5, 2, 17.5),
    Sketcher.Constraint("DistanceX", -1, 1, 0, 2, 6.0),
    Sketcher.Constraint("DistanceY", 0, 2, -1, 1, 76.0),
    Sketcher.Constraint("DistanceY", 5, 2, -1, 1, 42.0),
])
pocket6 = body.newObject("PartDesign::Pocket", "Pocket005")
pocket6.Profile = sketch10
pocket6.Length = 10
pocket6.Reversed = True

# Sketch on XY plane
sketch11 = body.newObject("Sketcher::SketchObject", "Sketch010")
sketch11.AttachmentSupport = (doc.getObject("XY_Plane"), [""])
sketch11.MapMode = "FlatFace"
sketch11.AttachmentOffset = App.Placement(Vector(0, 0, -90), App.Rotation())
sketch11.addGeometry([
    Part.LineSegment(Vector(74, 14, 0), Vector(74, 8, 0)),
    Part.LineSegment(Vector(74, 8, 0), Vector(64, 8, 0)),
    Part.LineSegment(Vector(64, 8, 0), Vector(64, 14, 0)),
    Part.LineSegment(Vector(64, 14, 0), Vector(74, 14, 0)),
], False)
sketch11.addConstraint([
    Sketcher.Constraint("Coincident", 0, 2, 1, 1),
    Sketcher.Constraint("Coincident", 1, 2, 2, 1),
    Sketcher.Constraint("Coincident", 2, 2, 3, 1),
    Sketcher.Constraint("Coincident", 3, 2, 0, 1),
    Sketcher.Constraint("Vertical", 0),
    Sketcher.Constraint("Horizontal", 1),
    Sketcher.Constraint("Vertical", 2),
    Sketcher.Constraint("Horizontal", 3),
    Sketcher.Constraint("DistanceX", 1, 2, 1, 1, 10.0),
    Sketcher.Constraint("DistanceY", 0, 2, 0, 1, 6.0),
    Sketcher.Constraint("DistanceX", -1, 1, 0, 2, 74.0),
    Sketcher.Constraint("DistanceY", -1, 1, 0, 2, 8.5),
])
pocket7 = body.newObject("PartDesign::Pocket", "Pocket006")
pocket7.Profile = sketch11
pocket7.Length = 10
pocket7.Reversed = True
doc.recompute()

fillet = body.newObject("PartDesign::Fillet", "Fillet")
fillet.Base = (pocket7, edges_at(pocket7, [
    (135, 1.5, 0),
    (85, 1.5, 0),
    (135, 1.5, -90),
    (85, 1.5, -90),
]))
fillet.Radius = 10
doc.recompute()

fillet2 = body.newObject("PartDesign::Fillet", "Fillet001")
fillet2.Base = (fillet, edges_at(fillet, [
    (11.052, 12.1, -9.43),
    (151.622, 12.1, -79.282),
    (11.052, 12.1, -79.282),
    (151.622, 12.1, -9.43),
]))
fillet2.Radius = 5
doc.recompute()

fillet3 = body.newObject("PartDesign::Fillet", "Fillet002")
fillet3.Base = (fillet2, edges_at(fillet2, [
    (0, 10.6, -90),
    (160, 10.6, -90),
    (160, 10.6, 0),
    (0, 10.6, 0),
]))
fillet3.Radius = 2

# Sketch on XZ plane
sketch12 = body.newObject("Sketcher::SketchObject", "Sketch011")
sketch12.AttachmentSupport = (doc.getObject("XZ_Plane"), [""])
sketch12.MapMode = "FlatFace"
sketch12.AttachmentOffset = App.Placement(Vector(0, 0, -2), App.Rotation())
sketch12.addGeometry([
    Part.Circle(Vector(16.8, -83.2, 0), Vector(0, 0, 1), 2.5),  # 0
    Part.Circle(Vector(16.8, -35, 0), Vector(0, 0, 1), 2.5),  # 1
    Part.Circle(Vector(57.4, -35, 0), Vector(0, 0, 1), 2.5),  # 2
    Part.Circle(Vector(57.4, -83.2, 0), Vector(0, 0, 1), 2.5),  # 3
    Part.Circle(Vector(137.1, -85.5, 0), Vector(0, 0, 1), 2.4),  # 4
    Part.Circle(Vector(136.1, -38.5, 0), Vector(0, 0, 1), 2.4),  # 5
    Part.Circle(Vector(85.3, -54.5, 0), Vector(0, 0, 1), 2.4),  # 6
    Part.Circle(Vector(85.3, -80.4, 0), Vector(0, 0, 1), 2.4),  # 7
], False)
sketch12.addConstraint([
    Sketcher.Constraint("Equal", 0, 1),
    Sketcher.Constraint("Equal", 1, 2),
    Sketcher.Constraint("Equal", 2, 3),
    Sketcher.Constraint("Equal", 4, 5),
    Sketcher.Constraint("Equal", 5, 6),
    Sketcher.Constraint("Equal", 6, 7),
    Sketcher.Constraint("Horizontal", 1, 3, 2, 3),
    Sketcher.Constraint("Horizontal", 0, 3, 3, 3),
    Sketcher.Constraint("Vertical", 0, 3, 1, 3),
    Sketcher.Constraint("Vertical", 2, 3, 3, 3),
    Sketcher.Constraint("Vertical", 6, 3, 7, 3),
    Sketcher.Constraint("Diameter", 0, 5.0),
    Sketcher.Constraint("Diameter", 4, 4.8),
    Sketcher.Constraint("DistanceY", 1, 3, -1, 1, 35.0),
    Sketcher.Constraint("DistanceX", 5, 3, 4, 3, 1.0),
    Sketcher.Constraint("DistanceY", 4, 3, 5, 3, 47.0),
    Sketcher.Constraint("DistanceY", 0, 3, -1, 1, 83.2),
    Sketcher.Constraint("DistanceX", -1, 1, 2, 3, 57.4),
    Sketcher.Constraint("DistanceY", 4, 3, -1, 1, 85.5),
    Sketcher.Constraint("DistanceY", 7, 3, -1, 1, 80.4),
    Sketcher.Constraint("DistanceX", 6, 3, 5, 3, 50.8),
    Sketcher.Constraint("DistanceX", -1, 1, 0, 3, 16.75),
    Sketcher.Constraint("DistanceY", 6, 3, -1, 1, 54.478431),
    Sketcher.Constraint("DistanceX", -1, 1, 4, 3, 137.122087),
])
pad5 = body.newObject("PartDesign::Pad", "Pad004")
pad5.Profile = sketch12
pad5.Length = 3
pad5.Reversed = True

# Sketch on XZ plane
sketch13 = body.newObject("Sketcher::SketchObject", "Sketch012")
sketch13.AttachmentSupport = (doc.getObject("XZ_Plane"), [""])
sketch13.MapMode = "FlatFace"
sketch13.AttachmentOffset = App.Placement(Vector(0, 0, -5), App.Rotation())
sketch13.addGeometry([
    Part.Circle(Vector(57.4, -83.2, 0), Vector(0, 0, 1), 1),  # 0
    Part.Circle(Vector(57.4, -35, 0), Vector(0, 0, 1), 1),  # 1
    Part.Circle(Vector(16.8, -35, 0), Vector(0, 0, 1), 1),  # 2
    Part.Circle(Vector(16.8, -83.2, 0), Vector(0, 0, 1), 1),  # 3
    Part.Circle(Vector(136.1, -38.5, 0), Vector(0, 0, 1), 1),  # 4
    Part.Circle(Vector(137.1, -85.5, 0), Vector(0, 0, 1), 1),  # 5
    Part.Circle(Vector(85.3, -80.4, 0), Vector(0, 0, 1), 1),  # 6
    Part.Circle(Vector(85.3, -54.5, 0), Vector(0, 0, 1), 1),  # 7
], False)
sketch13.addConstraint([
    Sketcher.Constraint("Equal", 0, 1),
    Sketcher.Constraint("Equal", 1, 2),
    Sketcher.Constraint("Equal", 2, 3),
    Sketcher.Constraint("Equal", 3, 4),
    Sketcher.Constraint("Equal", 4, 5),
    Sketcher.Constraint("Equal", 5, 6),
    Sketcher.Constraint("Equal", 6, 7),
    Sketcher.Constraint("Horizontal", 1, 3, 2, 3),
    Sketcher.Constraint("Horizontal", 0, 3, 3, 3),
    Sketcher.Constraint("Vertical", 0, 3, 1, 3),
    Sketcher.Constraint("Vertical", 2, 3, 3, 3),
    Sketcher.Constraint("Vertical", 6, 3, 7, 3),
    Sketcher.Constraint("Diameter", 0, 2.0),
    Sketcher.Constraint("DistanceY", 1, 3, -1, 1, 35.0),
    Sketcher.Constraint("DistanceX", 4, 3, 5, 3, 1.0),
    Sketcher.Constraint("DistanceY", 5, 3, 4, 3, 47.0),
    Sketcher.Constraint("DistanceX", -1, 1, 0, 3, 57.4),
    Sketcher.Constraint("DistanceY", 0, 3, -1, 1, 83.2),
    Sketcher.Constraint("DistanceY", 4, 3, -1, 1, 38.5),
    Sketcher.Constraint("DistanceY", 6, 3, -1, 1, 80.4),
    Sketcher.Constraint("DistanceX", 6, 3, 5, 3, 51.8),
    Sketcher.Constraint("DistanceX", -1, 1, 2, 3, 16.75),
    Sketcher.Constraint("DistanceY", 7, 3, -1, 1, 54.478431),
    Sketcher.Constraint("DistanceX", -1, 1, 4, 3, 136.122087),
])
pocket8 = body.newObject("PartDesign::Pocket", "Pocket007")
pocket8.Profile = sketch13
pocket8.Length = 2
pocket8.Reversed = True

# Sketch on YZ plane
sketch14 = body.newObject("Sketcher::SketchObject", "Sketch013")
sketch14.AttachmentSupport = (doc.getObject("YZ_Plane"), [""])
sketch14.MapMode = "FlatFace"
sketch14.AttachmentOffset = App.Placement(Vector(0, 0, 158), App.Rotation())
sketch14.addGeometry([
    Part.LineSegment(Vector(22, -62, 0), Vector(2, -62, 0)),
    Part.LineSegment(Vector(2, -62, 0), Vector(2, -40, 0)),
    Part.LineSegment(Vector(2, -40, 0), Vector(22, -40, 0)),
    Part.LineSegment(Vector(22, -40, 0), Vector(22, -62, 0)),
], False)
sketch14.addConstraint([
    Sketcher.Constraint("Coincident", 0, 2, 1, 1),
    Sketcher.Constraint("Coincident", 1, 2, 2, 1),
    Sketcher.Constraint("Coincident", 2, 2, 3, 1),
    Sketcher.Constraint("Coincident", 3, 2, 0, 1),
    Sketcher.Constraint("Horizontal", 0),
    Sketcher.Constraint("Vertical", 1),
    Sketcher.Constraint("Horizontal", 2),
    Sketcher.Constraint("Vertical", 3),
    Sketcher.Constraint("DistanceY", 1, 1, 1, 2, 22.0),
    Sketcher.Constraint("DistanceX", 0, 2, 0, 1, 19.5),
    Sketcher.Constraint("DistanceX", -1, 1, 0, 2, 2.0),
    Sketcher.Constraint("DistanceY", 0, 2, -1, 1, 62.0),
])
pad6 = body.newObject("PartDesign::Pad", "Pad005")
pad6.Profile = sketch14
pad6.Length = 5
pad6.Reversed = True

# Sketch on YZ plane
sketch15 = body.newObject("Sketcher::SketchObject", "Sketch014")
sketch15.AttachmentSupport = (doc.getObject("YZ_Plane"), [""])
sketch15.MapMode = "FlatFace"
sketch15.AttachmentOffset = App.Placement(Vector(0, 0, 153), App.Rotation())
sketch15.addGeometry([
    Part.LineSegment(Vector(20, -60, 0), Vector(6, -60, 0)),
    Part.LineSegment(Vector(6, -60, 0), Vector(6, -42, 0)),
    Part.LineSegment(Vector(6, -42, 0), Vector(20, -42, 0)),
    Part.LineSegment(Vector(20, -42, 0), Vector(20, -60, 0)),
], False)
sketch15.addConstraint([
    Sketcher.Constraint("Coincident", 0, 2, 1, 1),
    Sketcher.Constraint("Coincident", 1, 2, 2, 1),
    Sketcher.Constraint("Coincident", 2, 2, 3, 1),
    Sketcher.Constraint("Coincident", 3, 2, 0, 1),
    Sketcher.Constraint("Horizontal", 0),
    Sketcher.Constraint("Vertical", 1),
    Sketcher.Constraint("Horizontal", 2),
    Sketcher.Constraint("Vertical", 3),
    Sketcher.Constraint("DistanceX", 0, 2, 0, 1, 15.0),
    Sketcher.Constraint("DistanceY", 1, 1, 1, 2, 18.0),
    Sketcher.Constraint("DistanceY", 0, 2, -1, 1, 60.0),
    Sketcher.Constraint("DistanceX", -1, 1, 0, 2, 5.5),
])
pocket9 = body.newObject("PartDesign::Pocket", "Pocket008")
pocket9.Profile = sketch15
pocket9.Length = 17
pocket9.Reversed = True

doc.recompute()
